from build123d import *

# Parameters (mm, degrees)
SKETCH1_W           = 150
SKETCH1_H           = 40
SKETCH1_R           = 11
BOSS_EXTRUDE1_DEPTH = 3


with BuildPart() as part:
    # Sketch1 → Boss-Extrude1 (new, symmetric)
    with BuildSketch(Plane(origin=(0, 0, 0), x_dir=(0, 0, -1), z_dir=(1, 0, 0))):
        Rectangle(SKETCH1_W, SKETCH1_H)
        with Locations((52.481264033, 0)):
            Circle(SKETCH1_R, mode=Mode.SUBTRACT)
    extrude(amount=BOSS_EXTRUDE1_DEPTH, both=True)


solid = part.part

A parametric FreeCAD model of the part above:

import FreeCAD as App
import Part
import Sketcher


def add_polygon(sketch, points):
    """Adds a closed chain of lines whose ends are joined by coincident constraints."""
    first, n = sketch.GeometryCount, len(points)
    for a, b in zip(points, points[1:] + points[:1]):
        sketch.addGeometry(Part.LineSegment(App.Vector(*a, 0), App.Vector(*b, 0)), False)
    for i in range(n):
        sketch.addConstraint(Sketcher.Constraint("Coincident", first + i, 2, first + (i + 1) % n, 1))

doc = App.newDocument("Part")
body = doc.addObject("PartDesign::Body", "Body")

# Sketch on YZ plane
sketch1 = body.newObject("Sketcher::SketchObject", "Sketch")
sketch1.AttachmentSupport = (doc.getObject("YZ_Plane"), [""])
sketch1.MapMode = "FlatFace"
add_polygon(sketch1, [(20, 75), (-20, 75), (-20, -75), (20, -75)])  # lines 0-3
sketch1.addGeometry(Part.Circle(App.Vector(0, -52.481264, 0), App.Vector(0, 0, 1), 11), False)  # 4
sketch1.addConstraint([
    Sketcher.Constraint("Horizontal", 0),
    Sketcher.Constraint("Vertical", 1),
    Sketcher.Constraint("Horizontal", 2),
    Sketcher.Constraint("Vertical", 3),
    Sketcher.Constraint("Symmetric", 0, 2, 2, 2, -1, 1),
    Sketcher.Constraint("PointOnObject", 4, 3, -2),
    Sketcher.Constraint("Diameter", 4, 22.0),
    Sketcher.Constraint("DistanceX", 0, 2, 0, 1, 40.0),
    Sketcher.Constraint("DistanceY", 1, 2, 1, 1, 150.0),
    Sketcher.Constraint("DistanceY", 4, 3, -1, 1, 52.481264),
])
pad1 = body.newObject("PartDesign::Pad", "Pad")
pad1.Profile = sketch1
pad1.Length = 6
pad1.Midplane = True

doc.recompute()
